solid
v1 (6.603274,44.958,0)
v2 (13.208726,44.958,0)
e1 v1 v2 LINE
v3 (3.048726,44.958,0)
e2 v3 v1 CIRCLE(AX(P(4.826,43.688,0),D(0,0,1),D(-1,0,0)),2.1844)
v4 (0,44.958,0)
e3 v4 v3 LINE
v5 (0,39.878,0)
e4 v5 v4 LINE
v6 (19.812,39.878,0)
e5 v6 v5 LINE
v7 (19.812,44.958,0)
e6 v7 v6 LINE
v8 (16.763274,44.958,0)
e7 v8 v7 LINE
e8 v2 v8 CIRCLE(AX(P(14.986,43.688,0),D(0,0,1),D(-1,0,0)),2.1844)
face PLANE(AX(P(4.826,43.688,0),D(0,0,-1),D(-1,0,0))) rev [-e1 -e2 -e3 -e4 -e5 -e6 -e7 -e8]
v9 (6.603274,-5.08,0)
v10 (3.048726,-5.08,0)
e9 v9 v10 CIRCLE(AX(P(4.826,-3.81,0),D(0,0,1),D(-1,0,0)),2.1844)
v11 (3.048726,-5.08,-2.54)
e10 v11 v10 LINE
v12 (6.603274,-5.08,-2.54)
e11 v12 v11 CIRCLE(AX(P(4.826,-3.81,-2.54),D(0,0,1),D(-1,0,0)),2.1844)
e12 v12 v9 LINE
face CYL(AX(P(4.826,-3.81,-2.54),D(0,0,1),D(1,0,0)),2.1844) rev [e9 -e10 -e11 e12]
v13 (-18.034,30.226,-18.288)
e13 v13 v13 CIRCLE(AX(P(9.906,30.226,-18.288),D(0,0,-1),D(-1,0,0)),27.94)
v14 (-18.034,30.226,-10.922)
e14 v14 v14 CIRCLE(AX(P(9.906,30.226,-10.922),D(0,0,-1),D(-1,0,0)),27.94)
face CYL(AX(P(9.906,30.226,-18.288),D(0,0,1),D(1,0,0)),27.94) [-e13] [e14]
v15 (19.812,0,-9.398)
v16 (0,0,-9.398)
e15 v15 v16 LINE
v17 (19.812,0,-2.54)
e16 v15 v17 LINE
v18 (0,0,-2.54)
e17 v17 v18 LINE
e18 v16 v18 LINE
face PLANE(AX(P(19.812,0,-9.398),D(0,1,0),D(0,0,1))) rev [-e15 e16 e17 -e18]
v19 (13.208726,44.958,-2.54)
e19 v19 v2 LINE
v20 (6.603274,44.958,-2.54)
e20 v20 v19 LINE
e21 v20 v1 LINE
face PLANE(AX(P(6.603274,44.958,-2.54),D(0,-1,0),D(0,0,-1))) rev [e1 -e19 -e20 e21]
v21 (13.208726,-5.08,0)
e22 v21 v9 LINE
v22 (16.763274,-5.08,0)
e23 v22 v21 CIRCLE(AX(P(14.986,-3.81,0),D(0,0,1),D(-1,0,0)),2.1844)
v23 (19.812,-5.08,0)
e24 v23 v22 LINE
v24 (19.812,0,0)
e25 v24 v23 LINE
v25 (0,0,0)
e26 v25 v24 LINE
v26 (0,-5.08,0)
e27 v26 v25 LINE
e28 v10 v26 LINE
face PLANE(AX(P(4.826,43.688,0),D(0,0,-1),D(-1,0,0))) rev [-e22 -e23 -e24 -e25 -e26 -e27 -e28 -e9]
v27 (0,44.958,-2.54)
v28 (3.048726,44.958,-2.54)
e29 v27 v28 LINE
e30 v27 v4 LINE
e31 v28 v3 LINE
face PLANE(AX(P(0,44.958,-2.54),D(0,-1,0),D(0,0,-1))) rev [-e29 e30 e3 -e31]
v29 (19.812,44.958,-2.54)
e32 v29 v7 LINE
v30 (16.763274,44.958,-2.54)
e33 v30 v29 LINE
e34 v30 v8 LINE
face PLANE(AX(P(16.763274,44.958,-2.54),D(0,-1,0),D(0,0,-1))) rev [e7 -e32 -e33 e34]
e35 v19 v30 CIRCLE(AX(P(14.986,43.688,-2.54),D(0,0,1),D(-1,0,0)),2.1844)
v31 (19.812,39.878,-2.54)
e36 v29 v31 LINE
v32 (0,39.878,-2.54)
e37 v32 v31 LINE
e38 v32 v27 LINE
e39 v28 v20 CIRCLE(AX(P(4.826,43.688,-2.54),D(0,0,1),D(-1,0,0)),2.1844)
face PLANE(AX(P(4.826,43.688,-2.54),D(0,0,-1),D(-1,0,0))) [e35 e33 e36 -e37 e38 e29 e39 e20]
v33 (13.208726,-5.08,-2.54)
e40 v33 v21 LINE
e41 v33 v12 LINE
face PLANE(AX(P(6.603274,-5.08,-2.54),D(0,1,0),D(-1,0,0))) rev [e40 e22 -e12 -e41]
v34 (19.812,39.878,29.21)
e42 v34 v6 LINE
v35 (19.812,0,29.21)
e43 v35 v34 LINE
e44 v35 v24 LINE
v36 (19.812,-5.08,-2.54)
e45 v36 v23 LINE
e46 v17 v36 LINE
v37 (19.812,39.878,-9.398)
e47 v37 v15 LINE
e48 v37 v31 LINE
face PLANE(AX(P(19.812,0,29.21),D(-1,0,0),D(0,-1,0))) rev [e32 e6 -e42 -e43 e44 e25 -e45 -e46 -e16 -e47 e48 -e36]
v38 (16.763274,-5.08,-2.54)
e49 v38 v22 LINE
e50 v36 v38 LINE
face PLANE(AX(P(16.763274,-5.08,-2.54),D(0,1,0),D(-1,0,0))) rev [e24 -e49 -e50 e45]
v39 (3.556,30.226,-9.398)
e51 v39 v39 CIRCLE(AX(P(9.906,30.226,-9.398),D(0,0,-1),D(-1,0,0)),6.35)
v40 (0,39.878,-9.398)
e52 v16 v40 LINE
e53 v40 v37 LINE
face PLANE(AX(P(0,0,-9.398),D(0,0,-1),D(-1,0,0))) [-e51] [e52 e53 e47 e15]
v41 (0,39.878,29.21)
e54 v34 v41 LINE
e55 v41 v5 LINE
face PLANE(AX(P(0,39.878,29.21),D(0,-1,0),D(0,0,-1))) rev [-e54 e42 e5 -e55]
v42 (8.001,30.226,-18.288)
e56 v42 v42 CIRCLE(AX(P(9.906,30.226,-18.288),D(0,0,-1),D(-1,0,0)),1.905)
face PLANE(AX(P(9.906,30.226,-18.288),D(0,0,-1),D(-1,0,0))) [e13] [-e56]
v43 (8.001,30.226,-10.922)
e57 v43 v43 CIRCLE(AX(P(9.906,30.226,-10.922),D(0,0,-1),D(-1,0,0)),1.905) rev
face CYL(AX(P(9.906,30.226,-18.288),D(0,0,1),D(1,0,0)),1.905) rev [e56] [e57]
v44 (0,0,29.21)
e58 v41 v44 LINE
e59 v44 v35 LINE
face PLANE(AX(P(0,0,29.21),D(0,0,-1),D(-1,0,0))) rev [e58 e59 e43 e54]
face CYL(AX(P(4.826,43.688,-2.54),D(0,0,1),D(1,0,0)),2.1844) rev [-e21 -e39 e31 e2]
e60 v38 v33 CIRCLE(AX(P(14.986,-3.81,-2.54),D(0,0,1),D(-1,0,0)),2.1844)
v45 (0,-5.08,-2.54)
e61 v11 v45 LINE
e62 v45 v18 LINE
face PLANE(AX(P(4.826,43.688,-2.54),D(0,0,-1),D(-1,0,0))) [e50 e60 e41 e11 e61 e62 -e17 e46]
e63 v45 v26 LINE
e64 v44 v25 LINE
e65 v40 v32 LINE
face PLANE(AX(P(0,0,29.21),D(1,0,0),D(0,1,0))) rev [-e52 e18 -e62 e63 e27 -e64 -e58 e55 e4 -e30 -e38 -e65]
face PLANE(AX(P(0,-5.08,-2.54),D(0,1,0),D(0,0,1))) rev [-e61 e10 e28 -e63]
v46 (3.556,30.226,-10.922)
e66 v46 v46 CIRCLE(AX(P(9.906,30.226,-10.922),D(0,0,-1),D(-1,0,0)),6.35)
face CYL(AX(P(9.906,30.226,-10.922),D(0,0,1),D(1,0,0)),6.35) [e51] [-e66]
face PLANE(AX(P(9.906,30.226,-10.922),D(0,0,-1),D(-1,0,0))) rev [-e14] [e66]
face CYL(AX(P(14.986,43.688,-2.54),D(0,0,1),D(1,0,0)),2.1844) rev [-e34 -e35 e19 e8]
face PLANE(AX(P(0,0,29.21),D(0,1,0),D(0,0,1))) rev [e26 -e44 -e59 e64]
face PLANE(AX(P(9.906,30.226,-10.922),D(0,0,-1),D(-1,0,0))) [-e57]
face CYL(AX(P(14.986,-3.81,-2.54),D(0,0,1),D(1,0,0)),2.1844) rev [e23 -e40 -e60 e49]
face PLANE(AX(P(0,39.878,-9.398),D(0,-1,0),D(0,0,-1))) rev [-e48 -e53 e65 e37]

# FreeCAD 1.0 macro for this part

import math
import FreeCAD as App
import Part
import Sketcher

V = App.Vector
Q = App.Units.Quantity

doc = App.newDocument("Part")
body = doc.addObject("PartDesign::Body", "Body")

sketch1 = body.newObject("Sketcher::SketchObject", "Sketch")
sketch1.AttachmentSupport = (doc.getObject("XY_Plane"), [""])
sketch1.MapMode = "FlatFace"
sketch1.addGeometry(Part.LineSegment(V(0, 39.878, 0), V(0, 0, 0)), False)
sketch1.addGeometry(Part.LineSegment(V(0, 0, 0), V(19.812, 0, 0)), False)
sketch1.addGeometry(Part.LineSegment(V(19.812, 0, 0), V(19.812, 39.878, 0)), False)
sketch1.addGeometry(Part.LineSegment(V(19.812, 39.878, 0), V(0, 39.878, 0)), False)
sketch1.addConstraint(Sketcher.Constraint("Coincident", 0, 2, 1, 1))
sketch1.addConstraint(Sketcher.Constraint("Coincident", 1, 2, 2, 1))
sketch1.addConstraint(Sketcher.Constraint("Coincident", 2, 2, 3, 1))
sketch1.addConstraint(Sketcher.Constraint("Coincident", 3, 2, 0, 1))
sketch1.addConstraint(Sketcher.Constraint("Vertical", 0))
sketch1.addConstraint(Sketcher.Constraint("Horizontal", 1))
sketch1.addConstraint(Sketcher.Constraint("Vertical", 2))
sketch1.addConstraint(Sketcher.Constraint("Horizontal", 3))
sketch1.addConstraint(Sketcher.Constraint("Coincident", 0, 2, -1, 1))
sketch1.addConstraint(Sketcher.Constraint("DistanceX", 1, 1, 1, 2, Q("0.78 in")))
sketch1.addConstraint(Sketcher.Constraint("DistanceY", 0, 2, 0, 1, Q("1.57 in")))
pad1 = body.newObject("PartDesign::Pad", "Pad")
pad1.Profile = sketch1
pad1.Length = Q("1.15 in")

sketch2 = body.newObject("Sketcher::SketchObject", "Sketch001")
sketch2.AttachmentSupport = (doc.getObject("XY_Plane"), [""])
sketch2.MapMode = "FlatFace"
sketch2.addGeometry(Part.LineSegment(V(3.048726, -5.08, 0), V(0, -5.08, 0)), False)
sketch2.addGeometry(Part.LineSegment(V(0, -5.08, 0), V(0, 44.958, 0)), False)
sketch2.addGeometry(Part.LineSegment(V(0, 44.958, 0), V(3.048726, 44.958, 0)), False)
sketch2.addGeometry(Part.ArcOfCircle(Part.Circle(V(4.826, 43.688, 0), V(0, 0, 1), 2.1844), math.radians(144.451256), math.radians(395.548744)), False)
sketch2.addGeometry(Part.LineSegment(V(6.603274, 44.958, 0), V(13.208726, 44.958, 0)), False)
sketch2.addGeometry(Part.ArcOfCircle(Part.Circle(V(14.986, 43.688, 0), V(0, 0, 1), 2.1844), math.radians(144.451256), math.radians(395.548744)), False)
sketch2.addGeometry(Part.LineSegment(V(16.763274, 44.958, 0), V(19.812, 44.958, 0)), False)
sketch2.addGeometry(Part.LineSegment(V(19.812, 44.958, 0), V(19.812, -5.08, 0)), False)
sketch2.addGeometry(Part.LineSegment(V(19.812, -5.08, 0), V(16.763274, -5.08, 0)), False)
sketch2.addGeometry(Part.ArcOfCircle(Part.Circle(V(14.986, -3.81, 0), V(0, 0, 1), 2.1844), math.radians(-35.548744), math.radians(215.548744)), False)
sketch2.addGeometry(Part.LineSegment(V(13.208726, -5.08, 0), V(6.603274, -5.08, 0)), False)
sketch2.addGeometry(Part.ArcOfCircle(Part.Circle(V(4.826, -3.81, 0), V(0, 0, 1), 2.1844), math.radians(-35.548744), math.radians(215.548744)), False)
sketch2.addConstraint(Sketcher.Constraint("Coincident", 0, 2, 1, 1))
sketch2.addConstraint(Sketcher.Constraint("Coincident", 1, 2, 2, 1))
sketch2.addConstraint(Sketcher.Constraint("Coincident", 2, 2, 3, 1))
sketch2.addConstraint(Sketcher.Constraint("Coincident", 3, 2, 4, 1))
sketch2.addConstraint(Sketcher.Constraint("Coincident", 4, 2, 5, 1))
sketch2.addConstraint(Sketcher.Constraint("Coincident", 5, 2, 6, 1))
sketch2.addConstraint(Sketcher.Constraint("Coincident", 6, 2, 7, 1))
sketch2.addConstraint(Sketcher.Constraint("Coincident", 7, 2, 8, 1))
sketch2.addConstraint(Sketcher.Constraint("Coincident", 8, 2, 9, 1))
sketch2.addConstraint(Sketcher.Constraint("Coincident", 9, 2, 10, 1))
sketch2.addConstraint(Sketcher.Constraint("Coincident", 10, 2, 11, 1))
sketch2.addConstraint(Sketcher.Constraint("Coincident", 11, 2, 0, 1))
sketch2.addConstraint(Sketcher.Constraint("Horizontal", 0))
sketch2.addConstraint(Sketcher.Constraint("Vertical", 1))
sketch2.addConstraint(Sketcher.Constraint("Horizontal", 2))
sketch2.addConstraint(Sketcher.Constraint("Horizontal", 4))
sketch2.addConstraint(Sketcher.Constraint("Horizontal", 6))
sketch2.addConstraint(Sketcher.Constraint("Vertical", 7))
sketch2.addConstraint(Sketcher.Constraint("Horizontal", 8))
sketch2.addConstraint(Sketcher.Constraint("Horizontal", 10))
sketch2.addConstraint(Sketcher.Constraint("Equal", 3, 5))
sketch2.addConstraint(Sketcher.Constraint("Equal", 5, 9))
sketch2.addConstraint(Sketcher.Constraint("Equal", 9, 11))
sketch2.addConstraint(Sketcher.Constraint("PointOnObject", 0, 2, -2))
sketch2.addConstraint(Sketcher.Constraint("Horizontal", 3, 3, 5, 3))
sketch2.addConstraint(Sketcher.Constraint("Horizontal", 9, 3, 11, 3))
sketch2.addConstraint(Sketcher.Constraint("Horizontal", 2, 2, 3, 2))
sketch2.addConstraint(Sketcher.Constraint("Horizontal", 4, 2, 5, 2))
sketch2.addConstraint(Sketcher.Constraint("Horizontal", 0, 2, 7, 2))
sketch2.addConstraint(Sketcher.Constraint("Horizontal", 8, 2, 9, 2))
sketch2.addConstraint(Sketcher.Constraint("Vertical", 5, 3, 9, 3))
sketch2.addConstraint(Sketcher.Constraint("Vertical", 3, 3, 11, 3))
sketch2.addConstraint(Sketcher.Constraint("Vertical", 5, 2, 8, 2))
sketch2.addConstraint(Sketcher.Constraint("Equal", 2, 6))
sketch2.addConstraint(Sketcher.Constraint("Radius", 3, Q("0.086 in")))
sketch2.addConstraint(Sketcher.Constraint("DistanceY", 1, 1, 1, 2, Q("1.97 in")))
sketch2.addConstraint(Sketcher.Constraint("DistanceY", 0, 2, -1, 1, Q("0.2 in")))
sketch2.addConstraint(Sketcher.Constraint("DistanceX", 3, 3, 5, 3, Q("0.4 in")))
sketch2.addConstraint(Sketcher.Constraint("DistanceX", -1, 1, 3, 3, Q("0.19 in")))
sketch2.addConstraint(Sketcher.Constraint("DistanceY", -1, 1, 3, 3, Q("1.72 in")))
pad2 = body.newObject("PartDesign::Pad", "Pad001")
pad2.Profile = sketch2
pad2.Length = Q("0.1 in")
pad2.Reversed = True

sketch3 = body.newObject("Sketcher::SketchObject", "Sketch002")
sketch3.AttachmentSupport = (doc.getObject("XY_Plane"), [""])
sketch3.MapMode = "FlatFace"
sketch3.AttachmentOffset = App.Placement(V(0, 0, -0.1 * 25.4), App.Rotation())
sketch3.addGeometry(Part.LineSegment(V(19.812, 39.878, 0), V(19.812, 0, 0)), False)
sketch3.addGeometry(Part.LineSegment(V(19.812, 0, 0), V(0, 0, 0)), False)
sketch3.addGeometry(Part.LineSegment(V(0, 0, 0), V(0, 39.878, 0)), False)
sketch3.addGeometry(Part.LineSegment(V(0, 39.878, 0), V(19.812, 39.878, 0)), False)
sketch3.addConstraint(Sketcher.Constraint("Coincident", 0, 2, 1, 1))
sketch3.addConstraint(Sketcher.Constraint("Coincident", 1, 2, 2, 1))
sketch3.addConstraint(Sketcher.Constraint("Coincident", 2, 2, 3, 1))
sketch3.addConstraint(Sketcher.Constraint("Coincident", 3, 2, 0, 1))
sketch3.addConstraint(Sketcher.Constraint("Vertical", 0))
sketch3.addConstraint(Sketcher.Constraint("Horizontal", 1))
sketch3.addConstraint(Sketcher.Constraint("Vertical", 2))
sketch3.addConstraint(Sketcher.Constraint("Horizontal", 3))
sketch3.addConstraint(Sketcher.Constraint("Coincident", 1, 2, -1, 1))
sketch3.addConstraint(Sketcher.Constraint("DistanceX", 1, 2, 1, 1, Q("0.78 in")))
sketch3.addConstraint(Sketcher.Constraint("DistanceY", 0, 2, 0, 1, Q("1.57 in")))
pad3 = body.newObject("PartDesign::Pad", "Pad002")
pad3.Profile = sketch3
pad3.Length = Q("0.27 in")
pad3.Reversed = True

sketch4 = body.newObject("Sketcher::SketchObject", "Sketch003")
sketch4.AttachmentSupport = (doc.getObject("XY_Plane"), [""])
sketch4.MapMode = "FlatFace"
sketch4.AttachmentOffset = App.Placement(V(0, 0, -0.37 * 25.4), App.Rotation())
sketch4.addGeometry(Part.Circle(V(9.906, 30.226, 0), V(0, 0, 1), 6.35), False)
sketch4.addConstraint(Sketcher.Constraint("Diameter", 0, Q("0.5 in")))
sketch4.addConstraint(Sketcher.Constraint("DistanceX", -1, 1, 0, 3, Q("0.39 in")))
sketch4.addConstraint(Sketcher.Constraint("DistanceY", -1, 1, 0, 3, Q("1.19 in")))
pad4 = body.newObject("PartDesign::Pad", "Pad003")
pad4.Profile = sketch4
pad4.Length = Q("0.06 in")
pad4.Reversed = True

sketch5 = body.newObject("Sketcher::SketchObject", "Sketch004")
sketch5.AttachmentSupport = (doc.getObject("XY_Plane"), [""])
sketch5.MapMode = "FlatFace"
sketch5.AttachmentOffset = App.Placement(V(0, 0, -0.43 * 25.4), App.Rotation())
sketch5.addGeometry(Part.Circle(V(9.906, 30.226, 0), V(0, 0, 1), 27.94), False)
sketch5.addGeometry(Part.Circle(V(9.906, 30.226, 0), V(0, 0, 1), 1.905), False)
sketch5.addConstraint(Sketcher.Constraint("Coincident", 1, 3, 0, 3))
sketch5.addConstraint(Sketcher.Constraint("Diameter", 0, Q("2.2 in")))
sketch5.addConstraint(Sketcher.Constraint("Diameter", 1, Q("0.15 in")))
sketch5.addConstraint(Sketcher.Constraint("DistanceX", -1, 1, 0, 3, Q("0.39 in")))
sketch5.addConstraint(Sketcher.Constraint("DistanceY", -1, 1, 0, 3, Q("1.19 in")))
pad5 = body.newObject("PartDesign::Pad", "Pad004")
pad5.Profile = sketch5
pad5.Length = Q("0.29 in")
pad5.Reversed = True

doc.recompute()
